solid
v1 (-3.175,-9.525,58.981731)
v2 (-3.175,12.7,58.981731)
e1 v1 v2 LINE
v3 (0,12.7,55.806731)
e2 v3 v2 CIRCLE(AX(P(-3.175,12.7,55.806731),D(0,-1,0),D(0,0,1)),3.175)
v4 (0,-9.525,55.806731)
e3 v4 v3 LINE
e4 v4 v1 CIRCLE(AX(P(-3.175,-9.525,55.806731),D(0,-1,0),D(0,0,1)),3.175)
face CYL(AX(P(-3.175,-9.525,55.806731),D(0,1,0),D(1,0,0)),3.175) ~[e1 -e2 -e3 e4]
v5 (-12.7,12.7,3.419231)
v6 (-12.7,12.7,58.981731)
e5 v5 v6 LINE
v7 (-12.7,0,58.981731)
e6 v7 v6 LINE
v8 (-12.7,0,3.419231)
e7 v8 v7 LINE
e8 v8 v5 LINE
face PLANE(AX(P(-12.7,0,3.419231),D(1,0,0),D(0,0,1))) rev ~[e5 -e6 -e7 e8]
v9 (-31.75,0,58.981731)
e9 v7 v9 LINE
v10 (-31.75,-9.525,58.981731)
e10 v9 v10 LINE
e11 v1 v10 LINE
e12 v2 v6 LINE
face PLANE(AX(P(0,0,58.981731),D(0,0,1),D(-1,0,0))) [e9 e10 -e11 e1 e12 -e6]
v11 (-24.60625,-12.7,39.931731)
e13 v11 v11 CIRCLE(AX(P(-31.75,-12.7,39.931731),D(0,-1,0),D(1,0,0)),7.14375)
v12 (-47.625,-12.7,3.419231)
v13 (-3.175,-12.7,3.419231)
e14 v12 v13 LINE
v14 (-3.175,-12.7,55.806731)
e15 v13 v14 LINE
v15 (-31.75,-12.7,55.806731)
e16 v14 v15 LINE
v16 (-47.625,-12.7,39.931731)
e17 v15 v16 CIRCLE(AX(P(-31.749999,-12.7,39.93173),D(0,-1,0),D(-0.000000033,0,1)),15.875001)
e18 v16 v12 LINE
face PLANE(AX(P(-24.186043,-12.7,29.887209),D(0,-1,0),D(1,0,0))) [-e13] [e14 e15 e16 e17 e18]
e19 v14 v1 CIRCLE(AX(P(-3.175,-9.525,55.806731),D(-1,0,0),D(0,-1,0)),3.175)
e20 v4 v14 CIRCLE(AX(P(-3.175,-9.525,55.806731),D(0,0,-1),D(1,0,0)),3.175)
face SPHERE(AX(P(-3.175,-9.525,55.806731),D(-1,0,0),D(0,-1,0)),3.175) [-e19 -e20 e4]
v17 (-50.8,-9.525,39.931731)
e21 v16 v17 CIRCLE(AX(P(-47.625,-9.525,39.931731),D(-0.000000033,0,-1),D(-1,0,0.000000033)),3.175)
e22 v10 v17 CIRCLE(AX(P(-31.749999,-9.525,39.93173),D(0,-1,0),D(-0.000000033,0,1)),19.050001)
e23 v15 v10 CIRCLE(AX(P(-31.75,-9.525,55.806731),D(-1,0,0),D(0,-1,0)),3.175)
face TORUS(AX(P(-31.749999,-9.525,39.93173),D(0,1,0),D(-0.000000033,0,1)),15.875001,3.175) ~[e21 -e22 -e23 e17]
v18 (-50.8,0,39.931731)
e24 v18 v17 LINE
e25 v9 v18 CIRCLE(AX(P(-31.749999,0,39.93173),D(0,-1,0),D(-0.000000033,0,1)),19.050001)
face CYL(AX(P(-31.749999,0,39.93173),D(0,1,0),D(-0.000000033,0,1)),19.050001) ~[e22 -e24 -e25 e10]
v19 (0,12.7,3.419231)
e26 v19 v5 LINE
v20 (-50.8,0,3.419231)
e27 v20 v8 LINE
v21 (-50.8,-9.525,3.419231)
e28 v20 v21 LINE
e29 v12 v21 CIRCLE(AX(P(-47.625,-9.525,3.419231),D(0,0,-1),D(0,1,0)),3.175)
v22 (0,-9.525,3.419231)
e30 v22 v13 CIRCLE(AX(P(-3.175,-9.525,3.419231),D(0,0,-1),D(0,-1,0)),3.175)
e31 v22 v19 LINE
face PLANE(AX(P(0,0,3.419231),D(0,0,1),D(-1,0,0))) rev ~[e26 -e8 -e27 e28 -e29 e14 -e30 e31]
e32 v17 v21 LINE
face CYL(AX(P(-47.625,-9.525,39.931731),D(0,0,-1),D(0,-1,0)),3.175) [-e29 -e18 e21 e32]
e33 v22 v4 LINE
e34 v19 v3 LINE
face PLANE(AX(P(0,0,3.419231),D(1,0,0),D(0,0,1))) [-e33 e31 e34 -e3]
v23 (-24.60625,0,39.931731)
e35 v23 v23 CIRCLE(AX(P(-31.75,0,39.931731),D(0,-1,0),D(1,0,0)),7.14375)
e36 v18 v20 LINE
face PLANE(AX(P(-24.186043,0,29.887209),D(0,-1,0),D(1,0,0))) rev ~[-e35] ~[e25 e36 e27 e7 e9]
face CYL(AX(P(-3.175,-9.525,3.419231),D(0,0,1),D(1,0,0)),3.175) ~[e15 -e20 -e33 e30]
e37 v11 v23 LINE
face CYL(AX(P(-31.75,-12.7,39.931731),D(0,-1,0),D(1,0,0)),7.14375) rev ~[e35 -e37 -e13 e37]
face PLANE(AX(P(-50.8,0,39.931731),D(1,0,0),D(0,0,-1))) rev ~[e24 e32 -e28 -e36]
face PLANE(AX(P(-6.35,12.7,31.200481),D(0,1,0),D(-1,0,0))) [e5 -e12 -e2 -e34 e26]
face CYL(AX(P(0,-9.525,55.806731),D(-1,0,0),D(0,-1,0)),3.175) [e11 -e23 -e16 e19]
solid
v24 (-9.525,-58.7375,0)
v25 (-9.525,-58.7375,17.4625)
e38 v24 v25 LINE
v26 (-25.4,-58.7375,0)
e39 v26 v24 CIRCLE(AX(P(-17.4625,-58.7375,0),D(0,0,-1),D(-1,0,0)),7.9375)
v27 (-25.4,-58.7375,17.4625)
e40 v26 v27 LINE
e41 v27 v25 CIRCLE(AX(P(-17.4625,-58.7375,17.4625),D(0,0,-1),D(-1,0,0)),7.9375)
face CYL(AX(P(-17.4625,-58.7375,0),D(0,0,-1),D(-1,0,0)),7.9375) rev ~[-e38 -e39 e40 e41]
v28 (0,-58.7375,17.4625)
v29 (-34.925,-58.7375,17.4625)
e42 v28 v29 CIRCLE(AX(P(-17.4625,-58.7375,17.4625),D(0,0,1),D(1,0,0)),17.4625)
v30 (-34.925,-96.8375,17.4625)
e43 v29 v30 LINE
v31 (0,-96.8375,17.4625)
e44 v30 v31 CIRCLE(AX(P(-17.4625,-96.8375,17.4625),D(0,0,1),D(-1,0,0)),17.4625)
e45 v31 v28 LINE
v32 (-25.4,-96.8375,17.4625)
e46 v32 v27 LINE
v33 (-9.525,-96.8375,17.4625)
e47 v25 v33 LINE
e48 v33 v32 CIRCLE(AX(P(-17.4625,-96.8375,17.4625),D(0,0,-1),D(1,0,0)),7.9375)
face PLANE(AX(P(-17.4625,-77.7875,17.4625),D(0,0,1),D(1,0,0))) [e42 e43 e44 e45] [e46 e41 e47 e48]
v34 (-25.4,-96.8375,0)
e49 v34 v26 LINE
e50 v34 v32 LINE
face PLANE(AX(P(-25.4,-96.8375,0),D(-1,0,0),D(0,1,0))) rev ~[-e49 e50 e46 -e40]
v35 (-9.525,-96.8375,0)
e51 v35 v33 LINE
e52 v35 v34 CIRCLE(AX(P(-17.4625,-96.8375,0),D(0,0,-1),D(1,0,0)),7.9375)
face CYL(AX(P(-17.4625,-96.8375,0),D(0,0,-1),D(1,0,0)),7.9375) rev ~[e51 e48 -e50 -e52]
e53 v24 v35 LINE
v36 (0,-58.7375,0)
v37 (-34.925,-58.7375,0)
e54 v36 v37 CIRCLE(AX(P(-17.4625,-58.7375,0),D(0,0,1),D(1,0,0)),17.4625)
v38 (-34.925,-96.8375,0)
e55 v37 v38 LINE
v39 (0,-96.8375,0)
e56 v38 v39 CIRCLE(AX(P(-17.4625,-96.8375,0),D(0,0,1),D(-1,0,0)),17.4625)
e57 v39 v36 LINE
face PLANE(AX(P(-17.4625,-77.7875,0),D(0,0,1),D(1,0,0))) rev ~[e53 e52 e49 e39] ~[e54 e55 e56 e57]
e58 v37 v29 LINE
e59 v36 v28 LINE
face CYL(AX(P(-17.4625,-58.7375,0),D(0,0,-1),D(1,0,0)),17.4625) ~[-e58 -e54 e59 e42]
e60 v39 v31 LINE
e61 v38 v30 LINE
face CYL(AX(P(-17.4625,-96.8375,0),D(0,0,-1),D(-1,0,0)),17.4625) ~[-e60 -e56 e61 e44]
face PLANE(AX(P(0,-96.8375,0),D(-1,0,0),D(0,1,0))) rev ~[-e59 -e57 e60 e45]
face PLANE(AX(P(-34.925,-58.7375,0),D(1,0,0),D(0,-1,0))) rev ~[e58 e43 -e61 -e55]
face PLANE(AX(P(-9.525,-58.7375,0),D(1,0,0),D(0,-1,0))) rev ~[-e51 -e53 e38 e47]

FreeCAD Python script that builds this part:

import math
import FreeCAD as App
import Part
import Sketcher
from FreeCAD import Vector
Q = App.Units.Quantity


def edges_at(feature, points):
    """Names of the edges that pass closest to the given points."""
    edges = feature.Shape.Edges
    near = lambda p: min(range(len(edges)), key=lambda i: edges[i].distToShape(Part.Vertex(*p))[0])
    return sorted({f"Edge{near(p) + 1}" for p in points})


def add_polygon(sketch, points):
    """Adds a closed chain of lines whose ends are joined by coincident constraints."""
    first, n = sketch.GeometryCount, len(points)
    for a, b in zip(points, points[1:] + points[:1]):
        sketch.addGeometry(Part.LineSegment(App.Vector(*a, 0), App.Vector(*b, 0)), False)
    for i in range(n):
        sketch.addConstraint(Sketcher.Constraint("Coincident", first + i, 2, first + (i + 1) % n, 1))

doc = App.newDocument("Part")
params = doc.addObject("Spreadsheet::Sheet", "Params")
for row, (alias, value) in enumerate([
    ("sketch1_width", "2 in"),
    ("sketch1_radius", "0.75 in"),
    ("sketch1_height", "1.4375 in"),
    ("pad1_length", "0.5 in"),
    ("sketch2_width", "0.5 in"),
    ("sketch2_height", "2.1875 in"),
    ("pad2_length", "0.5 in"),
    ("sketch3_diameter", "0.5625 in"),
    ("pocket1_length", "0.5 in"),
    ("fillet_radius", "0.125 in"),
    ("fillet2_radius", "0.125 in"),
    ("sketch4_height", "1.5 in"),
    ("sketch4_radius", "0.6875 in"),
    ("pad3_length", "0.6875 in"),
], start=1):
    params.set(f"A{row}", alias)
    params.set(f"B{row}", "=" + value)
    params.setAlias(f"B{row}", alias)

body = doc.addObject("PartDesign::Body", "Body")

sketch1 = body.newObject("Sketcher::SketchObject", "Sketch")
sketch1.AttachmentSupport = (doc.getObject("XZ_Plane"), [""])
sketch1.MapMode = "FlatFace"
sketch1.addGeometry(Part.LineSegment(Vector(0, 59, 0), Vector(-32, 59, 0)), False)
sketch1.addGeometry(Part.ArcOfCircle(Part.Circle(Vector(-32, 40, 0), Vector(0, 0, 1), 19), math.radians(90), math.radians(180)), False)
sketch1.addGeometry(Part.LineSegment(Vector(-51, 40, 0), Vector(-51, 3, 0)), False)
sketch1.addGeometry(Part.LineSegment(Vector(-51, 3, 0), Vector(0, 3, 0)), False)
sketch1.addGeometry(Part.LineSegment(Vector(0, 3, 0), Vector(0, 59, 0)), False)
sketch1.addConstraint(Sketcher.Constraint("Tangent", 0, 2, 1, 1))
sketch1.addConstraint(Sketcher.Constraint("Tangent", 1, 2, 2, 1))
sketch1.addConstraint(Sketcher.Constraint("Coincident", 2, 2, 3, 1))
sketch1.addConstraint(Sketcher.Constraint("Coincident", 3, 2, 4, 1))
sketch1.addConstraint(Sketcher.Constraint("Coincident", 4, 2, 0, 1))
sketch1.addConstraint(Sketcher.Constraint("Horizontal", 0))
sketch1.addConstraint(Sketcher.Constraint("Vertical", 2))
sketch1.addConstraint(Sketcher.Constraint("Horizontal", 3))
sketch1.addConstraint(Sketcher.Constraint("Vertical", 4))
sketch1.addConstraint(Sketcher.Constraint("PointOnObject", 3, 2, -2))
sketch1.addConstraint(Sketcher.Constraint("DistanceX", 3, 1, 3, 2, Q("2 in")))
sketch1.addConstraint(Sketcher.Constraint("Radius", 1, Q("0.75 in")))
sketch1.addConstraint(Sketcher.Constraint("DistanceY", 2, 2, 2, 1, Q("1.4375 in")))
sketch1.addConstraint(Sketcher.Constraint("DistanceY", -1, 1, 1, 3, Q("39.93173 mm")))
sketch1.setExpression("Constraints[10]", "Params.sketch1_width")
sketch1.setExpression("Constraints[11]", "Params.sketch1_radius")
sketch1.setExpression("Constraints[12]", "Params.sketch1_height")
pad1 = body.newObject("PartDesign::Pad", "Pad")
pad1.Profile = sketch1
pad1.setExpression("Length", "Params.pad1_length")

sketch2 = body.newObject("Sketcher::SketchObject", "Sketch001")
sketch2.AttachmentSupport = (doc.getObject("XZ_Plane"), [""])
sketch2.MapMode = "FlatFace"
add_polygon(sketch2, [(0, 59), (0, 3), (-13, 3), (-13, 59)])
sketch2.addConstraint(Sketcher.Constraint("Vertical", 0))
sketch2.addConstraint(Sketcher.Constraint("Horizontal", 1))
sketch2.addConstraint(Sketcher.Constraint("Vertical", 2))
sketch2.addConstraint(Sketcher.Constraint("Horizontal", 3))
sketch2.addConstraint(Sketcher.Constraint("PointOnObject", 0, 2, -2))
sketch2.addConstraint(Sketcher.Constraint("DistanceX", 1, 2, 1, 1, Q("0.5 in")))
sketch2.addConstraint(Sketcher.Constraint("DistanceY", 0, 2, 0, 1, Q("2.1875 in")))
sketch2.addConstraint(Sketcher.Constraint("DistanceY", -1, 1, 0, 2, Q("3.419231 mm")))
sketch2.setExpression("Constraints[9]", "Params.sketch2_width")
sketch2.setExpression("Constraints[10]", "Params.sketch2_height")
pad2 = body.newObject("PartDesign::Pad", "Pad001")
pad2.Profile = sketch2
pad2.setExpression("Length", "Params.pad2_length")
pad2.Reversed = True

sketch3 = body.newObject("Sketcher::SketchObject", "Sketch002")
sketch3.AttachmentSupport = (doc.getObject("XZ_Plane"), [""])
sketch3.MapMode = "FlatFace"
sketch3.AttachmentOffset = App.Placement(Vector(0, 0, 0.5 * 25.4), App.Rotation())
sketch3.addGeometry(Part.Circle(Vector(-32, 40, 0), Vector(0, 0, 1), 7), False)
sketch3.addConstraint(Sketcher.Constraint("Diameter", 0, Q("0.5625 in")))
sketch3.addConstraint(Sketcher.Constraint("DistanceX", 0, 3, -1, 1, Q("1.25 in")))
sketch3.addConstraint(Sketcher.Constraint("DistanceY", -1, 1, 0, 3, Q("39.931731 mm")))
sketch3.setExpression("Constraints[0]", "Params.sketch3_diameter")
pocket1 = body.newObject("PartDesign::Pocket", "Pocket")
pocket1.Profile = sketch3
pocket1.setExpression("Length", "Params.pocket1_length")
doc.recompute()

fillet = body.newObject("PartDesign::Fillet", "Fillet")
fillet.Base = (pocket1, edges_at(pocket1, [(-45.22, -12.7, 53.402)]))
fillet.setExpression("Radius", "Params.fillet_radius")
doc.recompute()

fillet2 = body.newObject("PartDesign::Fillet", "Fillet001")
fillet2.Base = (fillet, edges_at(fillet, [(0, -12.7, 29.613)]))
fillet2.setExpression("Radius", "Params.fillet2_radius")
body2 = doc.addObject("PartDesign::Body", "Body001")

sketch4 = body2.newObject("Sketcher::SketchObject", "Sketch003")
sketch4.AttachmentSupport = (doc.getObject("XY_Plane001"), [""])
sketch4.MapMode = "FlatFace"
sketch4.addGeometry(Part.LineSegment(Vector(0, -97, 0), Vector(0, -59, 0)), False)
sketch4.addGeometry(Part.ArcOfCircle(Part.Circle(Vector(-17, -59, 0), Vector(0, 0, 1), 17), math.radians(0), math.radians(180)), False)
sketch4.addGeometry(Part.LineSegment(Vector(-35, -59, 0), Vector(-35, -97, 0)), False)
sketch4.addGeometry(Part.ArcOfCircle(Part.Circle(Vector(-17, -97, 0), Vector(0, 0, 1), 17), math.radians(180), math.radians(360)), False)
sketch4.addGeometry(Part.ArcOfCircle(Part.Circle(Vector(-17, -59, 0), Vector(0, 0, 1), 8), math.radians(0), math.radians(180)), False)
sketch4.addGeometry(Part.LineSegment(Vector(-10, -59, 0), Vector(-10, -97, 0)), False)
sketch4.addGeometry(Part.ArcOfCircle(Part.Circle(Vector(-17, -97, 0), Vector(0, 0, 1), 8), math.radians(180), math.radians(360)), False)
sketch4.addGeometry(Part.LineSegment(Vector(-25, -97, 0), Vector(-25, -59, 0)), False)
sketch4.addConstraint(Sketcher.Constraint("Tangent", 0, 2, 1, 1))
sketch4.addConstraint(Sketcher.Constraint("Tangent", 1, 2, 2, 1))
sketch4.addConstraint(Sketcher.Constraint("Tangent", 2, 2, 3, 1))
sketch4.addConstraint(Sketcher.Constraint("Tangent", 3, 2, 0, 1))
sketch4.addConstraint(Sketcher.Constraint("Tangent", 4, 1, 5, 1))
sketch4.addConstraint(Sketcher.Constraint("Tangent", 5, 2, 6, 2))
sketch4.addConstraint(Sketcher.Constraint("Tangent", 6, 1, 7, 1))
sketch4.addConstraint(Sketcher.Constraint("Tangent", 7, 2, 4, 2))
sketch4.addConstraint(Sketcher.Constraint("Vertical", 0))
sketch4.addConstraint(Sketcher.Constraint("Vertical", 2))
sketch4.addConstraint(Sketcher.Constraint("Vertical", 5))
sketch4.addConstraint(Sketcher.Constraint("Vertical", 7))
sketch4.addConstraint(Sketcher.Constraint("Coincident", 4, 3, 1, 3))
sketch4.addConstraint(Sketcher.Constraint("PointOnObject", 0, 2, -2))
sketch4.addConstraint(Sketcher.Constraint("Horizontal", 6, 3, 2, 2))
sketch4.addConstraint(Sketcher.Constraint("DistanceY", 0, 1, 0, 2, Q("1.5 in")))
sketch4.addConstraint(Sketcher.Constraint("DistanceX", 6, 1, -1, 1, Q("1 in")))
sketch4.addConstraint(Sketcher.Constraint("Radius", 1, Q("0.6875 in")))
sketch4.addConstraint(Sketcher.Constraint("DistanceY", 1, 3, -1, 1, Q("2.3125 in")))
sketch4.setExpression("Constraints[15]", "Params.sketch4_height")
sketch4.setExpression("Constraints[17]", "Params.sketch4_radius")
pad3 = body2.newObject("PartDesign::Pad", "Pad002")
pad3.Profile = sketch4
pad3.setExpression("Length", "Params.pad3_length")

doc.recompute()
